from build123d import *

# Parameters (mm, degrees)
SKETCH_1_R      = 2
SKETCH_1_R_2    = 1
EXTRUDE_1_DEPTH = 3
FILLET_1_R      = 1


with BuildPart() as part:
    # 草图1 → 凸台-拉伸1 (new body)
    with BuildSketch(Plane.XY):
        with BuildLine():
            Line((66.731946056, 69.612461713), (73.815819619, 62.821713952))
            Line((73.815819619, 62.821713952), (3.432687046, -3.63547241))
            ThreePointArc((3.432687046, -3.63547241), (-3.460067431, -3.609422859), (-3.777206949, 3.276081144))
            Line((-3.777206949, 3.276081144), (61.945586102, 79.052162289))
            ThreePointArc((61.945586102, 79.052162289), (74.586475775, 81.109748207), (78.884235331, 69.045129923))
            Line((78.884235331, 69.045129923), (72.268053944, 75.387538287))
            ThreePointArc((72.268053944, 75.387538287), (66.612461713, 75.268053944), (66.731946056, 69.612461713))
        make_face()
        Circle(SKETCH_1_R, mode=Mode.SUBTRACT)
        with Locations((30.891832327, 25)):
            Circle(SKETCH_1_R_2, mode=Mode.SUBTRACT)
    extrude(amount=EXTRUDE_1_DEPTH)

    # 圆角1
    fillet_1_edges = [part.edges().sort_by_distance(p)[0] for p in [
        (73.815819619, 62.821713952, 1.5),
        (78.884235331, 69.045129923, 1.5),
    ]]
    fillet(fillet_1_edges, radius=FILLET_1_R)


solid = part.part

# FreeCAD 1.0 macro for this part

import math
import FreeCAD as App
import Part
import Sketcher
Q = App.Units.Quantity


def edges_at(feature, points):
    """Names of the edges that pass closest to the given points."""
    edges = feature.Shape.Edges
    near = lambda p: min(range(len(edges)), key=lambda i: edges[i].distToShape(Part.Vertex(*p))[0])
    return sorted({f"Edge{near(p) + 1}" for p in points})

doc = App.newDocument("Part")
body = doc.addObject("PartDesign::Body", "Body")

# Sketch on XY plane
sketch1 = body.newObject("Sketcher::SketchObject", "Sketch")
sketch1.AttachmentSupport = (doc.getObject("XY_Plane"), [""])
sketch1.MapMode = "FlatFace"
sketch1.addGeometry([
    Part.LineSegment(App.Vector(73.8, 62.8, 0), App.Vector(66.7, 69.6, 0)),  # 0
    Part.ArcOfCircle(Part.Circle(App.Vector(69.5, 72.5, 0), App.Vector(0, 0, 1), 4), math.radians(46), math.radians(226)),  # 1
    Part.LineSegment(App.Vector(72.3, 75.4, 0), App.Vector(78.9, 69, 0)),  # 2
    Part.ArcOfCircle(Part.Circle(App.Vector(69.5, 72.5, 0), App.Vector(0, 0, 1), 10), math.radians(-20), math.radians(139)),  # 3
    Part.LineSegment(App.Vector(61.9, 79.1, 0), App.Vector(-3.8, 3.3, 0)),  # 4
    Part.ArcOfCircle(Part.Circle(App.Vector(0, 0, 0), App.Vector(0, 0, 1), 5), math.radians(139), math.radians(313)),  # 5
    Part.LineSegment(App.Vector(3.4, -3.6, 0), App.Vector(73.8, 62.8, 0)),  # 6
    Part.Circle(App.Vector(0, 0, 0), App.Vector(0, 0, 1), 2),  # 7
    Part.Circle(App.Vector(30.9, 25, 0), App.Vector(0, 0, 1), 1),  # 8
], False)
sketch1.addConstraint([
    Sketcher.Constraint("Tangent", 0, 2, 1, 2),
    Sketcher.Constraint("Tangent", 1, 1, 2, 1),
    Sketcher.Constraint("Coincident", 2, 2, 3, 1),
    Sketcher.Constraint("Tangent", 3, 2, 4, 1),
    Sketcher.Constraint("Tangent", 4, 2, 5, 1),
    Sketcher.Constraint("Tangent", 5, 2, 6, 1),
    Sketcher.Constraint("Coincident", 6, 2, 0, 1),
    Sketcher.Constraint("Coincident", 5, 3, -1, 1),
    Sketcher.Constraint("Coincident", 7, 3, -1, 1),
    Sketcher.Constraint("Coincident", 3, 3, 1, 3),
    Sketcher.Constraint("Parallel", 0, 2),
    Sketcher.Constraint("Diameter", 7, Q("4 mm")),
    Sketcher.Constraint("Diameter", 8, Q("2 mm")),
    Sketcher.Constraint("Radius", 1, Q("4 mm")),
    Sketcher.Constraint("Radius", 3, Q("10 mm")),
    Sketcher.Constraint("Radius", 5, Q("5 mm")),
    Sketcher.Constraint("DistanceY", -1, 1, 8, 3, Q("25 mm")),
    Sketcher.Constraint("DistanceX", -1, 1, 1, 3, Q("69.5 mm")),
    Sketcher.Constraint("DistanceY", -1, 1, 1, 3, Q("72.5 mm")),
    Sketcher.Constraint("DistanceY", 0, 2, 3, 2, Q("9.439701 mm")),
    Sketcher.Constraint("Distance", 0, Q("9.813028 mm")),
    Sketcher.Constraint("DistanceX", 8, 3, 1, 1, Q("41.376222 mm")),
])
pad1 = body.newObject("PartDesign::Pad", "Pad")
pad1.Profile = sketch1
pad1.Length = 3
doc.recompute()

fillet = body.newObject("PartDesign::Fillet", "Fillet")
fillet.Base = (pad1, edges_at(pad1, [(73.816, 62.822, 1.5), (78.884, 69.045, 1.5)]))
fillet.Radius = 1

doc.recompute()
